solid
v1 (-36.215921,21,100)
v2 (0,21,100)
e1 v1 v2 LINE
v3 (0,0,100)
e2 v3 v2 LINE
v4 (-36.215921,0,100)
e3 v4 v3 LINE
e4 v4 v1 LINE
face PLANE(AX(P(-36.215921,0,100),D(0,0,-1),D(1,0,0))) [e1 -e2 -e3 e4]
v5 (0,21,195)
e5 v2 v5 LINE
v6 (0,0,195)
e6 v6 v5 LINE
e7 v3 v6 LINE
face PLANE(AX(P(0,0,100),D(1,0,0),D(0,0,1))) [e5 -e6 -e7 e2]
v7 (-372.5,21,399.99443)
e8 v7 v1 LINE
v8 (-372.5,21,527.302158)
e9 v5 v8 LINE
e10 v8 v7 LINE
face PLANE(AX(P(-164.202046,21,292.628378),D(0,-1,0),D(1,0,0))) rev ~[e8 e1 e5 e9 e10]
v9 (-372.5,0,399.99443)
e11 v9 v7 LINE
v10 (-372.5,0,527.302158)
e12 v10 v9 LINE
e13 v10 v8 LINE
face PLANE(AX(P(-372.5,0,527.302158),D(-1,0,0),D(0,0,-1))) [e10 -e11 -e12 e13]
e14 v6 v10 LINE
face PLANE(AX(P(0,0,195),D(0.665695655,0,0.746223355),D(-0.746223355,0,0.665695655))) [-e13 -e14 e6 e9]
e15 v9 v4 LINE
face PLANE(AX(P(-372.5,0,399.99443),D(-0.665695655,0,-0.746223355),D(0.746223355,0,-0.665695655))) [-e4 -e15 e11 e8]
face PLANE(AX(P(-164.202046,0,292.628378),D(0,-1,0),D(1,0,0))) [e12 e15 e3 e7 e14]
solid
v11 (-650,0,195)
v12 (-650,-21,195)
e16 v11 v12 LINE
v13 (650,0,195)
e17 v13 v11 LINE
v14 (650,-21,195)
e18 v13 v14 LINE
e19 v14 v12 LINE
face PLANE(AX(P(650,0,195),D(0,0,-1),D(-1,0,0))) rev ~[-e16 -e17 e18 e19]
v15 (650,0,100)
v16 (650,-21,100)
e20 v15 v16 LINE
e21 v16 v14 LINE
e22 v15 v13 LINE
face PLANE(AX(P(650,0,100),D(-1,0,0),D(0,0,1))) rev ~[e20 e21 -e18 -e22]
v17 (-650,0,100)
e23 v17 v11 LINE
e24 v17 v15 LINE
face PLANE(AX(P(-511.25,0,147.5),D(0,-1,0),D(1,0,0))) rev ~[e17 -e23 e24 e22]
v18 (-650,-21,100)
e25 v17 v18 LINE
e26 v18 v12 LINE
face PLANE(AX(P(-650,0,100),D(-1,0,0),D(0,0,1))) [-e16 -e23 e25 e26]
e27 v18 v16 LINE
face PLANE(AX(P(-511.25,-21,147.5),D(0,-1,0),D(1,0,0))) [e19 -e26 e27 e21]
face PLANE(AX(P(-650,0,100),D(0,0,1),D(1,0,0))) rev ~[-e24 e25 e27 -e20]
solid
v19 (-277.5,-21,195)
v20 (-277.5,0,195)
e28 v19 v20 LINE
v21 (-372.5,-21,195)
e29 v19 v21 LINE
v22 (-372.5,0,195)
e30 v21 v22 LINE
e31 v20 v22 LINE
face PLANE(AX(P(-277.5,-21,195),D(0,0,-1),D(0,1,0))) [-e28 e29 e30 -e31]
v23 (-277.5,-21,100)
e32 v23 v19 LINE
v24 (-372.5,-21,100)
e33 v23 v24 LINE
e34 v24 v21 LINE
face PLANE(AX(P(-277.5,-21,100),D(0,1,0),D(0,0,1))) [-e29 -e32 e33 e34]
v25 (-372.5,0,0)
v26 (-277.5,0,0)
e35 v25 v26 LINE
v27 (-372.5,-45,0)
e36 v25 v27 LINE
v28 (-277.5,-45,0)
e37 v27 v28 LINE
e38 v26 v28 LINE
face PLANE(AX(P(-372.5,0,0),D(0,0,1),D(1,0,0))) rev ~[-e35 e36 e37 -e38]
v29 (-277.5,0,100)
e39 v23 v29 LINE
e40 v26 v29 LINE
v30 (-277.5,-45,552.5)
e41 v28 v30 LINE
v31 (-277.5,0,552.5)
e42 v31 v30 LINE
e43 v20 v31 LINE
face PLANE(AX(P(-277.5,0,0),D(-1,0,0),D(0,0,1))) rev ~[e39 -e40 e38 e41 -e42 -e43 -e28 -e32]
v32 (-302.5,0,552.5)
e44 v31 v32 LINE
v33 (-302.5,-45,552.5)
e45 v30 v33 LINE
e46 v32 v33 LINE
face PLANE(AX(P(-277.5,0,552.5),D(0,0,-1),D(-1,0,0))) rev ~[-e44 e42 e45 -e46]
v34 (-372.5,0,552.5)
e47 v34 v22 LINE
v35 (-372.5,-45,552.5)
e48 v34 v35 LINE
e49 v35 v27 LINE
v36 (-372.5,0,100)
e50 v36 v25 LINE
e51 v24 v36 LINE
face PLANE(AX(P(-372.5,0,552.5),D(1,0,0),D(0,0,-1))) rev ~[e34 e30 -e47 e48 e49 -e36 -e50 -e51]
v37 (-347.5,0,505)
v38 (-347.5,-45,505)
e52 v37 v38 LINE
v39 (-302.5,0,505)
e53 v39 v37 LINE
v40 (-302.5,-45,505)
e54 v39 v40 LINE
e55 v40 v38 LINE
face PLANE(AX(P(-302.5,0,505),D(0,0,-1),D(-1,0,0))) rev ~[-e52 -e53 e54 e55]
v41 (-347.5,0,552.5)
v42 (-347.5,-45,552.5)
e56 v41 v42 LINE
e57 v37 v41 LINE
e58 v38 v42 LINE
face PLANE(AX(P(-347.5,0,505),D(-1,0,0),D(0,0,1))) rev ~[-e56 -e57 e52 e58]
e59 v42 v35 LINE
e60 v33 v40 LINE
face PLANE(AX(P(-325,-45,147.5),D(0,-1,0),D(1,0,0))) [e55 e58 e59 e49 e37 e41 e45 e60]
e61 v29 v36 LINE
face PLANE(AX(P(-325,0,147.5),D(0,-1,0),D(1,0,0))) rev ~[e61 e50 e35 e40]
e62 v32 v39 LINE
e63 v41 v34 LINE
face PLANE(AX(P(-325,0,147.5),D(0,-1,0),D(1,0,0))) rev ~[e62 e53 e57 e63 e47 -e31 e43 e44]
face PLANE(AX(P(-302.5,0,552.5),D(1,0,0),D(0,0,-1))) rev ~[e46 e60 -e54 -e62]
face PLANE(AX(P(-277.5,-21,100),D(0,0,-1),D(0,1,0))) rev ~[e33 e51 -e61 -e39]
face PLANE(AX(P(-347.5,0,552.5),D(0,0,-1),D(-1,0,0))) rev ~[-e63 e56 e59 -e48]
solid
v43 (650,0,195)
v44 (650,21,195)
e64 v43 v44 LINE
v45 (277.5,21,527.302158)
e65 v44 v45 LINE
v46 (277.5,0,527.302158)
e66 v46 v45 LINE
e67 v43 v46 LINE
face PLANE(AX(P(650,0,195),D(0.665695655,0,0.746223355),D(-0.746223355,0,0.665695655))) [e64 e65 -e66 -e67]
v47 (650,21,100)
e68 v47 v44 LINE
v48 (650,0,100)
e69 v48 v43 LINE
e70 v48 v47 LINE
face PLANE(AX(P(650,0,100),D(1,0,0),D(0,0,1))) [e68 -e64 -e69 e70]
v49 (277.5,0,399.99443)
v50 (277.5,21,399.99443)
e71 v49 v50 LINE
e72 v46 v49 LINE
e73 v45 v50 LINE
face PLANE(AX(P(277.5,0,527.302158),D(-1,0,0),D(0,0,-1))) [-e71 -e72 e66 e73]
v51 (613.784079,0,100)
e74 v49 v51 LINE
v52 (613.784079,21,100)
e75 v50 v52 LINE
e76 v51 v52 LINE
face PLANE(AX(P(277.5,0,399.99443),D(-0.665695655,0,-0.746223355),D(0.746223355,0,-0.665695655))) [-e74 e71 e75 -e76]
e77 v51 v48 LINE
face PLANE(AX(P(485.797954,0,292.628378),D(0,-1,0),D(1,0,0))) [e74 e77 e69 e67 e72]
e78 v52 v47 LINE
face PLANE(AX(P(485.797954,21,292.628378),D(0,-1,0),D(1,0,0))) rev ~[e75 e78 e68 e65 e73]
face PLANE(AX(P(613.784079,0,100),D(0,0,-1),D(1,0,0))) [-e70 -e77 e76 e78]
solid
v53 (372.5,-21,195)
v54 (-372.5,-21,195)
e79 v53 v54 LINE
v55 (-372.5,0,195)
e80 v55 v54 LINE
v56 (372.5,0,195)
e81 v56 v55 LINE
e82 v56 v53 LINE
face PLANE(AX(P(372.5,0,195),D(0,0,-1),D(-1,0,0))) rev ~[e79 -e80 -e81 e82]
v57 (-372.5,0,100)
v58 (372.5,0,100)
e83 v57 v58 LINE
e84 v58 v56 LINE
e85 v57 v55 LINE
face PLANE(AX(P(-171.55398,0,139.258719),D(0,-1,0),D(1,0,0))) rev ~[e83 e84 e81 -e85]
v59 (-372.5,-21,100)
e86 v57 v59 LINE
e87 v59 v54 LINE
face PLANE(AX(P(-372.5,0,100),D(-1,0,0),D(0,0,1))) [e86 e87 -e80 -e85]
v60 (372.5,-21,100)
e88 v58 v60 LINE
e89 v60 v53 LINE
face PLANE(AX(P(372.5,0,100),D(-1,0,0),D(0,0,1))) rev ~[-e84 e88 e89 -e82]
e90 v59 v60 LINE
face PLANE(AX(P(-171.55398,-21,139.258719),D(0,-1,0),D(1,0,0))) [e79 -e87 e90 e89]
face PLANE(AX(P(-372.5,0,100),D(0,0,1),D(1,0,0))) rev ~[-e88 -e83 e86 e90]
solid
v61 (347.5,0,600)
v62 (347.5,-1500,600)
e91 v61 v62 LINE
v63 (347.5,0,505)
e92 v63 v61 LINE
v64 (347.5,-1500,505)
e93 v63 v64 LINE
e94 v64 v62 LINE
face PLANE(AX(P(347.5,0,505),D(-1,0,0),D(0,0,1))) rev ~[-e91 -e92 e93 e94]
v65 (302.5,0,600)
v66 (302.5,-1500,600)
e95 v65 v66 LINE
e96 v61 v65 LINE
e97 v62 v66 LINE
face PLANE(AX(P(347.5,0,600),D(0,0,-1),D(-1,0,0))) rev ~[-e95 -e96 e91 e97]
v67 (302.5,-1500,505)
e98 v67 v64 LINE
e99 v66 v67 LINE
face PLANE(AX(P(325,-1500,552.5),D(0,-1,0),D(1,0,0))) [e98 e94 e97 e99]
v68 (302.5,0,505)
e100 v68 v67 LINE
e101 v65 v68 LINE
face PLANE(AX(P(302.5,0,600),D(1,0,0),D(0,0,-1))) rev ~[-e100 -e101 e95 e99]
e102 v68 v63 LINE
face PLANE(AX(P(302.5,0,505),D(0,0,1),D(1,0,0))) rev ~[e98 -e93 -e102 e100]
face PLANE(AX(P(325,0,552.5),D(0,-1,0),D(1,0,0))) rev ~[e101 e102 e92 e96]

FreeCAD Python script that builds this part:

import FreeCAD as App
import Part
import Sketcher

V = App.Vector


def add_polygon(sketch, points):
    """Adds a closed chain of lines whose ends are joined by coincident constraints."""
    first, n = sketch.GeometryCount, len(points)
    for a, b in zip(points, points[1:] + points[:1]):
        sketch.addGeometry(Part.LineSegment(App.Vector(*a, 0), App.Vector(*b, 0)), False)
    for i in range(n):
        sketch.addConstraint(Sketcher.Constraint("Coincident", first + i, 2, first + (i + 1) % n, 1))

doc = App.newDocument("Part")
body = doc.addObject("PartDesign::Body", "Body")

sketch1 = body.newObject("Sketcher::SketchObject", "Sketch")
sketch1.AttachmentSupport = (doc.getObject("XZ_Plane"), [""])
sketch1.MapMode = "FlatFace"
add_polygon(sketch1, [(-372.5, 0), (-277.5, 0), (-277.5, 552.5), (-302.5, 552.5), (-302.5, 505), (-347.5, 505), (-347.5, 552.5), (-372.5, 552.5)])
sketch1.addConstraint(Sketcher.Constraint("Horizontal", 0))
sketch1.addConstraint(Sketcher.Constraint("Vertical", 1))
sketch1.addConstraint(Sketcher.Constraint("Horizontal", 2))
sketch1.addConstraint(Sketcher.Constraint("Vertical", 3))
sketch1.addConstraint(Sketcher.Constraint("Horizontal", 4))
sketch1.addConstraint(Sketcher.Constraint("Vertical", 5))
sketch1.addConstraint(Sketcher.Constraint("Horizontal", 6))
sketch1.addConstraint(Sketcher.Constraint("Vertical", 7))
sketch1.addConstraint(Sketcher.Constraint("PointOnObject", 0, 2, -1))
sketch1.addConstraint(Sketcher.Constraint("Horizontal", 2, 2, 5, 2))
sketch1.addConstraint(Sketcher.Constraint("Equal", 2, 6))
sketch1.addConstraint(Sketcher.Constraint("DistanceX", 0, 1, 0, 2, 95.0))
sketch1.addConstraint(Sketcher.Constraint("DistanceX", 2, 2, 2, 1, 25.0))
sketch1.addConstraint(Sketcher.Constraint("DistanceY", 1, 1, 1, 2, 552.5))
sketch1.addConstraint(Sketcher.Constraint("DistanceY", 3, 2, 3, 1, 47.5))
sketch1.addConstraint(Sketcher.Constraint("DistanceX", 0, 2, -1, 1, 277.5))
pad1 = body.newObject("PartDesign::Pad", "Pad")
pad1.Profile = sketch1
pad1.Length = 45

sketch2 = body.newObject("Sketcher::SketchObject", "Sketch001")
sketch2.AttachmentSupport = (doc.getObject("YZ_Plane"), [""])
sketch2.MapMode = "FlatFace"
sketch2.AttachmentOffset = App.Placement(V(0, 0, -277.5), App.Rotation())
add_polygon(sketch2, [(-21, 195), (-21, 100), (0, 100), (0, 195)])
sketch2.addConstraint(Sketcher.Constraint("Vertical", 0))
sketch2.addConstraint(Sketcher.Constraint("Horizontal", 1))
sketch2.addConstraint(Sketcher.Constraint("Vertical", 2))
sketch2.addConstraint(Sketcher.Constraint("Horizontal", 3))
sketch2.addConstraint(Sketcher.Constraint("PointOnObject", 1, 2, -2))
sketch2.addConstraint(Sketcher.Constraint("DistanceX", 1, 1, 1, 2, 21.0))
sketch2.addConstraint(Sketcher.Constraint("DistanceY", 0, 2, 0, 1, 95.0))
sketch2.addConstraint(Sketcher.Constraint("DistanceY", -1, 1, 0, 2, 100.0))
pocket1 = body.newObject("PartDesign::Pocket", "Pocket")
pocket1.Profile = sketch2
pocket1.Type = "ThroughAll"
body2 = doc.addObject("PartDesign::Body", "Body001")

sketch3 = body2.newObject("Sketcher::SketchObject", "Sketch002")
sketch3.AttachmentSupport = (doc.getObject("XZ_Plane001"), [""])
sketch3.MapMode = "FlatFace"
add_polygon(sketch3, [(-650, 195), (-650, 100), (650, 100), (650, 195)])
sketch3.addConstraint(Sketcher.Constraint("Vertical", 0))
sketch3.addConstraint(Sketcher.Constraint("Horizontal", 1))
sketch3.addConstraint(Sketcher.Constraint("Vertical", 2))
sketch3.addConstraint(Sketcher.Constraint("Horizontal", 3))
sketch3.addConstraint(Sketcher.Constraint("DistanceX", 1, 1, 1, 2, 1300.0))
sketch3.addConstraint(Sketcher.Constraint("DistanceY", 0, 2, 0, 1, 95.0))
sketch3.addConstraint(Sketcher.Constraint("DistanceX", 0, 2, -1, 1, 650.0))
sketch3.addConstraint(Sketcher.Constraint("DistanceY", -1, 1, 0, 2, 100.0))
pad2 = body2.newObject("PartDesign::Pad", "Pad001")
pad2.Profile = sketch3
pad2.Length = 21
body3 = doc.addObject("PartDesign::Body", "Body002")

sketch4 = body3.newObject("Sketcher::SketchObject", "Sketch003")
sketch4.AttachmentSupport = (doc.getObject("XZ_Plane002"), [""])
sketch4.MapMode = "FlatFace"
add_polygon(sketch4, [(650, 195), (277.5, 527.302158), (277.5, 399.99443), (613.784079, 100), (650, 100)])
sketch4.addConstraint(Sketcher.Constraint("Vertical", 1))
sketch4.addConstraint(Sketcher.Constraint("Horizontal", 3))
sketch4.addConstraint(Sketcher.Constraint("Vertical", 4))
sketch4.addConstraint(Sketcher.Constraint("Parallel", 0, 2))
sketch4.addConstraint(Sketcher.Constraint("DistanceY", 4, 1, 4, 2, 95.0))
sketch4.addConstraint(Sketcher.Constraint("DistanceY", -1, 1, 2, 2, 100.0))
sketch4.addConstraint(Sketcher.Constraint("DistanceX", -1, 1, 3, 2, 650.0))
sketch4.addConstraint(Sketcher.Constraint("DistanceX", -1, 1, 0, 2, 277.5))
sketch4.addConstraint(Sketcher.Constraint("DistanceX", 3, 1, 3, 2, 36.215921))
sketch4.addConstraint(Sketcher.Constraint("DistanceY", 1, 2, 1, 1, 127.307728))
pad3 = body3.newObject("PartDesign::Pad", "Pad002")
pad3.Profile = sketch4
pad3.Length = 21
pad3.Reversed = True
body4 = doc.addObject("PartDesign::Body", "Body003")

sketch5 = body4.newObject("Sketcher::SketchObject", "Sketch004")
sketch5.AttachmentSupport = (doc.getObject("XZ_Plane003"), [""])
sketch5.MapMode = "FlatFace"
add_polygon(sketch5, [(302.5, 505), (347.5, 505), (347.5, 600), (302.5, 600)])
sketch5.addConstraint(Sketcher.Constraint("Horizontal", 0))
sketch5.addConstraint(Sketcher.Constraint("Vertical", 1))
sketch5.addConstraint(Sketcher.Constraint("Horizontal", 2))
sketch5.addConstraint(Sketcher.Constraint("Vertical", 3))
sketch5.addConstraint(Sketcher.Constraint("DistanceX", 0, 1, 0, 2, 45.0))
sketch5.addConstraint(Sketcher.Constraint("DistanceY", 1, 1, 1, 2, 95.0))
sketch5.addConstraint(Sketcher.Constraint("DistanceY", -1, 1, 0, 2, 505.0))
sketch5.addConstraint(Sketcher.Constraint("DistanceX", -1, 1, 0, 2, 347.5))
pad4 = body4.newObject("PartDesign::Pad", "Pad003")
pad4.Profile = sketch5
pad4.Length = 1500
body5 = doc.addObject("PartDesign::Body", "Body004")

sketch6 = body5.newObject("Sketcher::SketchObject", "Sketch005")
sketch6.AttachmentSupport = (doc.getObject("XZ_Plane004"), [""])
sketch6.MapMode = "FlatFace"
add_polygon(sketch6, [(-372.5, 195), (-372.5, 100), (372.5, 100), (372.5, 195)])
sketch6.addConstraint(Sketcher.Constraint("Vertical", 0))
sketch6.addConstraint(Sketcher.Constraint("Horizontal", 1))
sketch6.addConstraint(Sketcher.Constraint("Vertical", 2))
sketch6.addConstraint(Sketcher.Constraint("Horizontal", 3))
sketch6.addConstraint(Sketcher.Constraint("DistanceX", 1, 1, 1, 2, 745.0))
sketch6.addConstraint(Sketcher.Constraint("DistanceY", 0, 2, 0, 1, 95.0))
sketch6.addConstraint(Sketcher.Constraint("DistanceY", -1, 1, 0, 2, 100.0))
sketch6.addConstraint(Sketcher.Constraint("DistanceX", 0, 2, -1, 1, 372.5))
pad5 = body5.newObject("PartDesign::Pad", "Pad004")
pad5.Profile = sketch6
pad5.Length = 21
body6 = doc.addObject("PartDesign::Body", "Body005")

sketch7 = body6.newObject("Sketcher::SketchObject", "Sketch006")
sketch7.AttachmentSupport = (doc.getObject("XZ_Plane005"), [""])
sketch7.MapMode = "FlatFace"
add_polygon(sketch7, [(0, 195), (-372.5, 527.302158), (-372.5, 399.99443), (-36.215921, 100), (0, 100)])
sketch7.addConstraint(Sketcher.Constraint("Vertical", 1))
sketch7.addConstraint(Sketcher.Constraint("Horizontal", 3))
sketch7.addConstraint(Sketcher.Constraint("Vertical", 4))
sketch7.addConstraint(Sketcher.Constraint("PointOnObject", 3, 2, -2))
sketch7.addConstraint(Sketcher.Constraint("Parallel", 0, 2))
sketch7.addConstraint(Sketcher.Constraint("DistanceY", 4, 1, 4, 2, 95.0))
sketch7.addConstraint(Sketcher.Constraint("DistanceY", -1, 1, 2, 2, 100.0))
sketch7.addConstraint(Sketcher.Constraint("DistanceX", 0, 2, -1, 1, 372.5))
sketch7.addConstraint(Sketcher.Constraint("DistanceX", 3, 1, 3, 2, 36.215921))
sketch7.addConstraint(Sketcher.Constraint("DistanceY", 1, 2, 1, 1, 127.307728))
pad6 = body6.newObject("PartDesign::Pad", "Pad005")
pad6.Profile = sketch7
pad6.Length = 21
pad6.Reversed = True

doc.recompute()
